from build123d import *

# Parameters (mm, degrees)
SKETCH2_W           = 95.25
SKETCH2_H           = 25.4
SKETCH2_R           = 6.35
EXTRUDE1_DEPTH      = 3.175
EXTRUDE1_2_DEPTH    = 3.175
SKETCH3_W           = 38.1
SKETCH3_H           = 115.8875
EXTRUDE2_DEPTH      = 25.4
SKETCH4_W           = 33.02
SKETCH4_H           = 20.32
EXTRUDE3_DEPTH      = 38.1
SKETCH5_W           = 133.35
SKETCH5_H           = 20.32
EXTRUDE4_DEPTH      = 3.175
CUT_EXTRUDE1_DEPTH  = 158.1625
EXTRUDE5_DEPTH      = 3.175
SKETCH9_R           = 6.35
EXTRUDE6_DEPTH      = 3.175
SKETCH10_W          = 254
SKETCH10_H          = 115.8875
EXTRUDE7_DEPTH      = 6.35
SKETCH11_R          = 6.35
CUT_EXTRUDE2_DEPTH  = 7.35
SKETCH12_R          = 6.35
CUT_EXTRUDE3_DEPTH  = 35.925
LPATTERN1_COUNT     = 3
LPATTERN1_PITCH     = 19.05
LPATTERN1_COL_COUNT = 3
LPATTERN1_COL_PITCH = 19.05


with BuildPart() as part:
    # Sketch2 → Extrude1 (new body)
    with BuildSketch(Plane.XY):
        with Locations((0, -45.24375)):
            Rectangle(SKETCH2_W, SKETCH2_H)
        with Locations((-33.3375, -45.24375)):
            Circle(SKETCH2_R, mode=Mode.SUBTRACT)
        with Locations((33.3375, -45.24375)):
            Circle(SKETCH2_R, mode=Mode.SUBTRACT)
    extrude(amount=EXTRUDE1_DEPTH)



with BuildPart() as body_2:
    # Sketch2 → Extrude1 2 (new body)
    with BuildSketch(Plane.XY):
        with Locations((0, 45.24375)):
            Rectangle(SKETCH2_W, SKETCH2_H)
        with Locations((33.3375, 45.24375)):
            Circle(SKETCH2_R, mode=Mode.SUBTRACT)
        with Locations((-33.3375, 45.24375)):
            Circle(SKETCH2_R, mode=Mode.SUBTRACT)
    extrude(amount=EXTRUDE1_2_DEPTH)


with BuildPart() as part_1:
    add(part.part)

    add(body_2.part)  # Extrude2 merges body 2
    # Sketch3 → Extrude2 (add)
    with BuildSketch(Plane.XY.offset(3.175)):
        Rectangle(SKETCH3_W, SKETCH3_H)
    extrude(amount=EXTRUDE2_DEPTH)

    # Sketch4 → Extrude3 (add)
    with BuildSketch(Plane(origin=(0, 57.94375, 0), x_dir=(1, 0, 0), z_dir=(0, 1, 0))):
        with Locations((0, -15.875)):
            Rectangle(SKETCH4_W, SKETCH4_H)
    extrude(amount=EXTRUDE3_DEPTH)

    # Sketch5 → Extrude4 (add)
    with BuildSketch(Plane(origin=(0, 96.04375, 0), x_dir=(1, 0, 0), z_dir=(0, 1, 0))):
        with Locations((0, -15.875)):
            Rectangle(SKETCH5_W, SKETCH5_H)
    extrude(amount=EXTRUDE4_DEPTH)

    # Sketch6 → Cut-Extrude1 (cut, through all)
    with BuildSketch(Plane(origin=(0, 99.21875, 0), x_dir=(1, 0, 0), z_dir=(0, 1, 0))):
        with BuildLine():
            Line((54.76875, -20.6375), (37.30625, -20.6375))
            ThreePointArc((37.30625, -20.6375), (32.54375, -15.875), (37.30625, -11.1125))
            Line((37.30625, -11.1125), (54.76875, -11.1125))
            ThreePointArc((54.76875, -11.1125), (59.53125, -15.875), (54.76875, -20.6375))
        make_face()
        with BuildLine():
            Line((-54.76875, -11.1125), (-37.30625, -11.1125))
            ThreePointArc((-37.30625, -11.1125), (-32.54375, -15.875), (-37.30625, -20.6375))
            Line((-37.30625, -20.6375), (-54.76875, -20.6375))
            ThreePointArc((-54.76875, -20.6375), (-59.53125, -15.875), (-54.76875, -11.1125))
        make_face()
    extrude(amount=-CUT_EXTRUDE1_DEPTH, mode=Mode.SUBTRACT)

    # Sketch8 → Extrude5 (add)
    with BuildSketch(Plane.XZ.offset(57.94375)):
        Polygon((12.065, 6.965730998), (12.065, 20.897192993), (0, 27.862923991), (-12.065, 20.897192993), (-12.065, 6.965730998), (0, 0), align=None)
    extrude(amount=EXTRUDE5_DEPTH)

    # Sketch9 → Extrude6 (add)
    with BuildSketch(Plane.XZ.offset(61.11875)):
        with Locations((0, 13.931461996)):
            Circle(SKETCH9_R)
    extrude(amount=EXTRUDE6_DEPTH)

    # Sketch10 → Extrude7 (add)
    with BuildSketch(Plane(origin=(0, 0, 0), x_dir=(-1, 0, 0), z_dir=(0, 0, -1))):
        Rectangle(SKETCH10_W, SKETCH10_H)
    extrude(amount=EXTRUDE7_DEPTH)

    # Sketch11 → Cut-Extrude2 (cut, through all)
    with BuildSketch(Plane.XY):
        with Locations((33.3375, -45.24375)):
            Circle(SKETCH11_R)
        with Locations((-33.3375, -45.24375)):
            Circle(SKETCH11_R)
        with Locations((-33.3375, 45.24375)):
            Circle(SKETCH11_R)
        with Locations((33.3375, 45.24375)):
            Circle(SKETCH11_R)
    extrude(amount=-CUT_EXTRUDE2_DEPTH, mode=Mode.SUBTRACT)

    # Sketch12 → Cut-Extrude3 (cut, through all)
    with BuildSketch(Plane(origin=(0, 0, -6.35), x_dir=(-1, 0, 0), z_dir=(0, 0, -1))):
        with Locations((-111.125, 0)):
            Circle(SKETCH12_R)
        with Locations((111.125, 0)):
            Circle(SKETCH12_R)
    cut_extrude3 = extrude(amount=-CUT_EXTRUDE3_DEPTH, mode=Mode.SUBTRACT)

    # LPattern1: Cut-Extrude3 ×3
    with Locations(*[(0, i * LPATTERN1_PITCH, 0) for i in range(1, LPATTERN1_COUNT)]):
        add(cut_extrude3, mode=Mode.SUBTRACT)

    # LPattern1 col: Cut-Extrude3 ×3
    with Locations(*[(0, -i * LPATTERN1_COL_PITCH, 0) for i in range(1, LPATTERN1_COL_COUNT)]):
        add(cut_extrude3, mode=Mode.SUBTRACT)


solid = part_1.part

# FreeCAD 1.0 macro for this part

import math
import FreeCAD as App
import Part
import Sketcher
from FreeCAD import Vector
Q = App.Units.Quantity


def add_polygon(sketch, points):
    """Adds a closed chain of lines whose ends are joined by coincident constraints."""
    first, n = sketch.GeometryCount, len(points)
    for a, b in zip(points, points[1:] + points[:1]):
        sketch.addGeometry(Part.LineSegment(App.Vector(*a, 0), App.Vector(*b, 0)), False)
    for i in range(n):
        sketch.addConstraint(Sketcher.Constraint("Coincident", first + i, 2, first + (i + 1) % n, 1))

doc = App.newDocument("Part")
body = doc.addObject("PartDesign::Body", "Body")

# Sketch on XY plane
sketch1 = body.newObject("Sketcher::SketchObject", "Sketch")
sketch1.AttachmentSupport = (doc.getObject("XY_Plane"), [""])
sketch1.MapMode = "FlatFace"
add_polygon(sketch1, [(-48, -33), (-48, -58), (48, -58), (48, -33)])  # lines 0-3
sketch1.addGeometry(Part.Circle(Vector(-33, -45, 0), Vector(0, 0, 1), 6), False)  # 4
sketch1.addGeometry(Part.Circle(Vector(33, -45, 0), Vector(0, 0, 1), 6), False)  # 5
sketch1.addConstraint([
    Sketcher.Constraint("Vertical", 0),
    Sketcher.Constraint("Horizontal", 1),
    Sketcher.Constraint("Vertical", 2),
    Sketcher.Constraint("Horizontal", 3),
    Sketcher.Constraint("Equal", 4, 5),
    Sketcher.Constraint("Symmetric", 4, 3, 5, 3, -2),
    Sketcher.Constraint("Diameter", 4, Q("0.5 in")),
    Sketcher.Constraint("DistanceY", 0, 2, 0, 1, Q("1 in")),
    Sketcher.Constraint("DistanceX", 1, 1, 1, 2, Q("3.75 in")),
    Sketcher.Constraint("DistanceY", 0, 2, 4, 3, Q("0.5 in")),
    Sketcher.Constraint("DistanceX", 4, 3, -1, 1, Q("1.3125 in")),
    Sketcher.Constraint("DistanceY", 4, 3, -1, 1, Q("1.78125 in")),
    Sketcher.Constraint("DistanceX", 0, 2, -1, 1, Q("1.875 in")),
])
pad1 = body.newObject("PartDesign::Pad", "Pad")
pad1.Profile = sketch1
pad1.Length = Q("0.125 in")
body2 = doc.addObject("PartDesign::Body", "Body001")

# Sketch on XY plane
sketch2 = body2.newObject("Sketcher::SketchObject", "Sketch001")
sketch2.AttachmentSupport = (doc.getObject("XY_Plane001"), [""])
sketch2.MapMode = "FlatFace"
add_polygon(sketch2, [(-48, 58), (-48, 33), (48, 33), (48, 58)])  # lines 0-3
sketch2.addGeometry(Part.Circle(Vector(-33, 45, 0), Vector(0, 0, 1), 6), False)  # 4
sketch2.addGeometry(Part.Circle(Vector(33, 45, 0), Vector(0, 0, 1), 6), False)  # 5
sketch2.addConstraint([
    Sketcher.Constraint("Vertical", 0),
    Sketcher.Constraint("Horizontal", 1),
    Sketcher.Constraint("Vertical", 2),
    Sketcher.Constraint("Horizontal", 3),
    Sketcher.Constraint("Equal", 4, 5),
    Sketcher.Constraint("Symmetric", 4, 3, 5, 3, -2),
    Sketcher.Constraint("Diameter", 4, Q("0.5 in")),
    Sketcher.Constraint("DistanceY", 0, 2, 0, 1, Q("1 in")),
    Sketcher.Constraint("DistanceX", 1, 1, 1, 2, Q("3.75 in")),
    Sketcher.Constraint("DistanceY", 0, 2, 4, 3, Q("0.5 in")),
    Sketcher.Constraint("DistanceX", 4, 3, -1, 1, Q("1.3125 in")),
    Sketcher.Constraint("DistanceY", -1, 1, 4, 3, Q("1.78125 in")),
    Sketcher.Constraint("DistanceX", 0, 2, -1, 1, Q("1.875 in")),
])
pad2 = body2.newObject("PartDesign::Pad", "Pad001")
pad2.Profile = sketch2
pad2.Length = Q("0.125 in")
body.AllowCompound = True
doc.recompute()

boolean = body.newObject("PartDesign::Boolean", "Boolean")
boolean.Type = "Fuse"
boolean.addObjects([body2])

# Sketch on XY plane
sketch3 = body.newObject("Sketcher::SketchObject", "Sketch002")
sketch3.AttachmentSupport = (doc.getObject("XY_Plane"), [""])
sketch3.MapMode = "FlatFace"
sketch3.AttachmentOffset = App.Placement(Vector(0, 0, 0.125 * 25.4), App.Rotation())
add_polygon(sketch3, [(-19, 58), (-19, -58), (19, -58), (19, 58)])  # lines 0-3
sketch3.addConstraint([
    Sketcher.Constraint("Vertical", 0),
    Sketcher.Constraint("Horizontal", 1),
    Sketcher.Constraint("Vertical", 2),
    Sketcher.Constraint("Horizontal", 3),
    Sketcher.Constraint("Symmetric", 0, 2, 2, 2, -1, 1),
    Sketcher.Constraint("DistanceX", 1, 1, 1, 2, Q("1.5 in")),
    Sketcher.Constraint("DistanceY", 0, 2, 0, 1, Q("4.5625 in")),
])
pad3 = body.newObject("PartDesign::Pad", "Pad002")
pad3.Profile = sketch3
pad3.Length = Q("1 in")

# Sketch on XZ plane
sketch4 = body.newObject("Sketcher::SketchObject", "Sketch003")
sketch4.AttachmentSupport = (doc.getObject("XZ_Plane"), [""])
sketch4.MapMode = "FlatFace"
sketch4.AttachmentOffset = App.Placement(Vector(0, 0, -2.28125 * 25.4), App.Rotation())
add_polygon(sketch4, [(-17, 6), (-17, 26), (17, 26), (17, 6)])  # lines 0-3
sketch4.addConstraint([
    Sketcher.Constraint("Vertical", 0),
    Sketcher.Constraint("Horizontal", 1),
    Sketcher.Constraint("Vertical", 2),
    Sketcher.Constraint("Horizontal", 3),
    Sketcher.Constraint("DistanceX", 1, 1, 1, 2, Q("1.3 in")),
    Sketcher.Constraint("DistanceY", 0, 1, 0, 2, Q("0.8 in")),
    Sketcher.Constraint("DistanceX", 0, 2, -1, 1, Q("0.65 in")),
    Sketcher.Constraint("DistanceY", -1, 1, 0, 2, Q("1.025 in")),
])
pad4 = body.newObject("PartDesign::Pad", "Pad003")
pad4.Profile = sketch4
pad4.Length = Q("1.5 in")
pad4.Reversed = True

# Sketch on XZ plane
sketch5 = body.newObject("Sketcher::SketchObject", "Sketch004")
sketch5.AttachmentSupport = (doc.getObject("XZ_Plane"), [""])
sketch5.MapMode = "FlatFace"
sketch5.AttachmentOffset = App.Placement(Vector(0, 0, -3.78125 * 25.4), App.Rotation())
add_polygon(sketch5, [(-67, 6), (-67, 26), (67, 26), (67, 6)])  # lines 0-3
sketch5.addConstraint([
    Sketcher.Constraint("Vertical", 0),
    Sketcher.Constraint("Horizontal", 1),
    Sketcher.Constraint("Vertical", 2),
    Sketcher.Constraint("Horizontal", 3),
    Sketcher.Constraint("DistanceY", 0, 1, 0, 2, Q("0.8 in")),
    Sketcher.Constraint("DistanceX", 1, 1, 1, 2, Q("5.25 in")),
    Sketcher.Constraint("DistanceX", 0, 2, -1, 1, Q("2.625 in")),
    Sketcher.Constraint("DistanceY", -1, 1, 0, 2, Q("1.025 in")),
])
pad5 = body.newObject("PartDesign::Pad", "Pad004")
pad5.Profile = sketch5
pad5.Length = Q("0.125 in")
pad5.Reversed = True

# Sketch on XZ plane
sketch6 = body.newObject("Sketcher::SketchObject", "Sketch005")
sketch6.AttachmentSupport = (doc.getObject("XZ_Plane"), [""])
sketch6.MapMode = "FlatFace"
sketch6.AttachmentOffset = App.Placement(Vector(0, 0, -3.90625 * 25.4), App.Rotation())
sketch6.addGeometry([
    Part.LineSegment(Vector(37.3, 20.6, 0), Vector(54.8, 20.6, 0)),  # 0
    Part.ArcOfCircle(Part.Circle(Vector(54.8, 15.9, 0), Vector(0, 0, 1), 4.8), math.radians(-90), math.radians(90)),  # 1
    Part.LineSegment(Vector(54.8, 11.1, 0), Vector(37.3, 11.1, 0)),  # 2
    Part.ArcOfCircle(Part.Circle(Vector(37.3, 15.9, 0), Vector(0, 0, 1), 4.8), math.radians(90), math.radians(270)),  # 3
    Part.LineSegment(Vector(-37.3, 11.1, 0), Vector(-54.8, 11.1, 0)),  # 4
    Part.ArcOfCircle(Part.Circle(Vector(-54.8, 15.9, 0), Vector(0, 0, 1), 4.8), math.radians(90), math.radians(270)),  # 5
    Part.LineSegment(Vector(-54.8, 20.6, 0), Vector(-37.3, 20.6, 0)),  # 6
    Part.ArcOfCircle(Part.Circle(Vector(-37.3, 15.9, 0), Vector(0, 0, 1), 4.8), math.radians(-90), math.radians(90)),  # 7
], False)
sketch6.addConstraint([
    Sketcher.Constraint("Tangent", 0, 2, 1, 2),
    Sketcher.Constraint("Tangent", 1, 1, 2, 1),
    Sketcher.Constraint("Tangent", 2, 2, 3, 2),
    Sketcher.Constraint("Tangent", 3, 1, 0, 1),
    Sketcher.Constraint("Tangent", 4, 2, 5, 2),
    Sketcher.Constraint("Tangent", 5, 1, 6, 1),
    Sketcher.Constraint("Tangent", 6, 2, 7, 2),
    Sketcher.Constraint("Tangent", 7, 1, 4, 1),
    Sketcher.Constraint("Horizontal", 0),
    Sketcher.Constraint("Horizontal", 2),
    Sketcher.Constraint("Horizontal", 4),
    Sketcher.Constraint("Horizontal", 6),
    Sketcher.Constraint("Equal", 3, 5),
    Sketcher.Constraint("Symmetric", 1, 3, 5, 3, -2),
    Sketcher.Constraint("Equal", 2, 4),
    Sketcher.Constraint("Radius", 1, Q("0.1875 in")),
    Sketcher.Constraint("DistanceX", 0, 1, 0, 2, Q("0.6875 in")),
    Sketcher.Constraint("DistanceX", -1, 1, 1, 3, Q("2.15625 in")),
    Sketcher.Constraint("DistanceY", -1, 1, 1, 3, Q("0.625 in")),
])
pocket1 = body.newObject("PartDesign::Pocket", "Pocket")
pocket1.Profile = sketch6
pocket1.Type = "ThroughAll"
pocket1.Reversed = True

# Sketch on XZ plane
sketch7 = body.newObject("Sketcher::SketchObject", "Sketch006")
sketch7.AttachmentSupport = (doc.getObject("XZ_Plane"), [""])
sketch7.MapMode = "FlatFace"
sketch7.AttachmentOffset = App.Placement(Vector(0, 0, 2.28125 * 25.4), App.Rotation())
add_polygon(sketch7, [(12, 7), (12, 21), (0, 28), (-12, 21), (-12, 7), (0, 0)])  # lines 0-5
sketch7.addConstraint([
    Sketcher.Constraint("Vertical", 0),
    Sketcher.Constraint("Vertical", 3),
    Sketcher.Constraint("Coincident", 4, 2, -1, 1),
    Sketcher.Constraint("Symmetric", 0, 2, 2, 2, -2),
    Sketcher.Constraint("PointOnObject", 1, 2, -2),
    Sketcher.Constraint("Parallel", 1, 4),
    Sketcher.Constraint("Parallel", 2, 5),
    Sketcher.Constraint("Angle", 1, Q("150 deg")),
    Sketcher.Constraint("DistanceX", 2, 2, 0, 2, Q("0.95 in")),
    Sketcher.Constraint("DistanceY", 0, 1, 0, 2, Q("13.931462 mm")),
])
pad6 = body.newObject("PartDesign::Pad", "Pad005")
pad6.Profile = sketch7
pad6.Length = Q("0.125 in")

# Sketch on XZ plane
sketch8 = body.newObject("Sketcher::SketchObject", "Sketch007")
sketch8.AttachmentSupport = (doc.getObject("XZ_Plane"), [""])
sketch8.MapMode = "FlatFace"
sketch8.AttachmentOffset = App.Placement(Vector(0, 0, 2.40625 * 25.4), App.Rotation())
sketch8.addGeometry(Part.Circle(Vector(0, 14, 0), Vector(0, 0, 1), 6), False)
sketch8.addConstraint([
    Sketcher.Constraint("PointOnObject", 0, 3, -2),
    Sketcher.Constraint("Diameter", 0, Q("0.5 in")),
    Sketcher.Constraint("DistanceY", -1, 1, 0, 3, Q("13.931462 mm")),
])
pad7 = body.newObject("PartDesign::Pad", "Pad006")
pad7.Profile = sketch8
pad7.Length = Q("0.125 in")

# Sketch on XY plane
sketch9 = body.newObject("Sketcher::SketchObject", "Sketch008")
sketch9.AttachmentSupport = (doc.getObject("XY_Plane"), [""])
sketch9.MapMode = "FlatFace"
add_polygon(sketch9, [(127, 58), (127, -58), (-127, -58), (-127, 58)])  # lines 0-3
sketch9.addConstraint([
    Sketcher.Constraint("Vertical", 0),
    Sketcher.Constraint("Horizontal", 1),
    Sketcher.Constraint("Vertical", 2),
    Sketcher.Constraint("Horizontal", 3),
    Sketcher.Constraint("Symmetric", 0, 2, 2, 2, -1, 1),
    Sketcher.Constraint("DistanceX", 1, 2, 1, 1, Q("10 in")),
    Sketcher.Constraint("DistanceY", 0, 2, 0, 1, Q("4.5625 in")),
])
pad8 = body.newObject("PartDesign::Pad", "Pad007")
pad8.Profile = sketch9
pad8.Length = Q("0.25 in")
pad8.Reversed = True

# Sketch on XY plane
sketch10 = body.newObject("Sketcher::SketchObject", "Sketch009")
sketch10.AttachmentSupport = (doc.getObject("XY_Plane"), [""])
sketch10.MapMode = "FlatFace"
sketch10.addGeometry([
    Part.Circle(Vector(33, -45, 0), Vector(0, 0, 1), 6),
    Part.Circle(Vector(-33, -45, 0), Vector(0, 0, 1), 6),
    Part.Circle(Vector(-33, 45, 0), Vector(0, 0, 1), 6),
    Part.Circle(Vector(33, 45, 0), Vector(0, 0, 1), 6),
], False)
sketch10.addConstraint([
    Sketcher.Constraint("Equal", 0, 1),
    Sketcher.Constraint("Equal", 1, 2),
    Sketcher.Constraint("Equal", 2, 3),
    Sketcher.Constraint("Symmetric", 0, 3, 2, 3, -1, 1),
    Sketcher.Constraint("Symmetric", 1, 3, 3, 3, -1, 1),
    Sketcher.Constraint("Symmetric", 0, 3, 1, 3, -2),
    Sketcher.Constraint("Diameter", 0, Q("0.5 in")),
    Sketcher.Constraint("DistanceX", -1, 1, 0, 3, Q("1.3125 in")),
    Sketcher.Constraint("DistanceY", 0, 3, -1, 1, Q("1.78125 in")),
])
pocket2 = body.newObject("PartDesign::Pocket", "Pocket001")
pocket2.Profile = sketch10
pocket2.Type = "ThroughAll"

# Sketch on XY plane
sketch11 = body.newObject("Sketcher::SketchObject", "Sketch010")
sketch11.AttachmentSupport = (doc.getObject("XY_Plane"), [""])
sketch11.MapMode = "FlatFace"
sketch11.AttachmentOffset = App.Placement(Vector(0, 0, -0.25 * 25.4), App.Rotation())
sketch11.addGeometry([
    Part.Circle(Vector(111, 0, 0), Vector(0, 0, 1), 6),
    Part.Circle(Vector(-111, 0, 0), Vector(0, 0, 1), 6),
], False)
sketch11.addConstraint([
    Sketcher.Constraint("Equal", 0, 1),
    Sketcher.Constraint("Symmetric", 0, 3, 1, 3, -1, 1),
    Sketcher.Constraint("PointOnObject", 0, 3, -1),
    Sketcher.Constraint("Diameter", 0, Q("0.5 in")),
    Sketcher.Constraint("DistanceX", 1, 3, 0, 3, Q("8.75 in")),
])
pocket3 = body.newObject("PartDesign::Pocket", "Pocket002")
pocket3.Profile = sketch11
pocket3.Type = "ThroughAll"
pocket3.Reversed = True
doc.recompute()

linearpattern = body.newObject("PartDesign::LinearPattern", "LinearPattern")
linearpattern.Originals = [pocket3]
linearpattern.Direction = (doc.getObject("Y_Axis"), [""])
linearpattern.Mode = "offset"
linearpattern.Offset = Q("0.75 in")
linearpattern.Occurrences = 3
body.Tip = linearpattern
doc.recompute()

linearpattern2 = body.newObject("PartDesign::LinearPattern", "LinearPattern001")
linearpattern2.Originals = [pocket3]
linearpattern2.Direction = (doc.getObject("Y_Axis"), [""])
linearpattern2.Mode = "offset"
linearpattern2.Offset = Q("0.75 in")
linearpattern2.Occurrences = 3
linearpattern2.Reversed = True
body.Tip = linearpattern2

doc.recompute()
